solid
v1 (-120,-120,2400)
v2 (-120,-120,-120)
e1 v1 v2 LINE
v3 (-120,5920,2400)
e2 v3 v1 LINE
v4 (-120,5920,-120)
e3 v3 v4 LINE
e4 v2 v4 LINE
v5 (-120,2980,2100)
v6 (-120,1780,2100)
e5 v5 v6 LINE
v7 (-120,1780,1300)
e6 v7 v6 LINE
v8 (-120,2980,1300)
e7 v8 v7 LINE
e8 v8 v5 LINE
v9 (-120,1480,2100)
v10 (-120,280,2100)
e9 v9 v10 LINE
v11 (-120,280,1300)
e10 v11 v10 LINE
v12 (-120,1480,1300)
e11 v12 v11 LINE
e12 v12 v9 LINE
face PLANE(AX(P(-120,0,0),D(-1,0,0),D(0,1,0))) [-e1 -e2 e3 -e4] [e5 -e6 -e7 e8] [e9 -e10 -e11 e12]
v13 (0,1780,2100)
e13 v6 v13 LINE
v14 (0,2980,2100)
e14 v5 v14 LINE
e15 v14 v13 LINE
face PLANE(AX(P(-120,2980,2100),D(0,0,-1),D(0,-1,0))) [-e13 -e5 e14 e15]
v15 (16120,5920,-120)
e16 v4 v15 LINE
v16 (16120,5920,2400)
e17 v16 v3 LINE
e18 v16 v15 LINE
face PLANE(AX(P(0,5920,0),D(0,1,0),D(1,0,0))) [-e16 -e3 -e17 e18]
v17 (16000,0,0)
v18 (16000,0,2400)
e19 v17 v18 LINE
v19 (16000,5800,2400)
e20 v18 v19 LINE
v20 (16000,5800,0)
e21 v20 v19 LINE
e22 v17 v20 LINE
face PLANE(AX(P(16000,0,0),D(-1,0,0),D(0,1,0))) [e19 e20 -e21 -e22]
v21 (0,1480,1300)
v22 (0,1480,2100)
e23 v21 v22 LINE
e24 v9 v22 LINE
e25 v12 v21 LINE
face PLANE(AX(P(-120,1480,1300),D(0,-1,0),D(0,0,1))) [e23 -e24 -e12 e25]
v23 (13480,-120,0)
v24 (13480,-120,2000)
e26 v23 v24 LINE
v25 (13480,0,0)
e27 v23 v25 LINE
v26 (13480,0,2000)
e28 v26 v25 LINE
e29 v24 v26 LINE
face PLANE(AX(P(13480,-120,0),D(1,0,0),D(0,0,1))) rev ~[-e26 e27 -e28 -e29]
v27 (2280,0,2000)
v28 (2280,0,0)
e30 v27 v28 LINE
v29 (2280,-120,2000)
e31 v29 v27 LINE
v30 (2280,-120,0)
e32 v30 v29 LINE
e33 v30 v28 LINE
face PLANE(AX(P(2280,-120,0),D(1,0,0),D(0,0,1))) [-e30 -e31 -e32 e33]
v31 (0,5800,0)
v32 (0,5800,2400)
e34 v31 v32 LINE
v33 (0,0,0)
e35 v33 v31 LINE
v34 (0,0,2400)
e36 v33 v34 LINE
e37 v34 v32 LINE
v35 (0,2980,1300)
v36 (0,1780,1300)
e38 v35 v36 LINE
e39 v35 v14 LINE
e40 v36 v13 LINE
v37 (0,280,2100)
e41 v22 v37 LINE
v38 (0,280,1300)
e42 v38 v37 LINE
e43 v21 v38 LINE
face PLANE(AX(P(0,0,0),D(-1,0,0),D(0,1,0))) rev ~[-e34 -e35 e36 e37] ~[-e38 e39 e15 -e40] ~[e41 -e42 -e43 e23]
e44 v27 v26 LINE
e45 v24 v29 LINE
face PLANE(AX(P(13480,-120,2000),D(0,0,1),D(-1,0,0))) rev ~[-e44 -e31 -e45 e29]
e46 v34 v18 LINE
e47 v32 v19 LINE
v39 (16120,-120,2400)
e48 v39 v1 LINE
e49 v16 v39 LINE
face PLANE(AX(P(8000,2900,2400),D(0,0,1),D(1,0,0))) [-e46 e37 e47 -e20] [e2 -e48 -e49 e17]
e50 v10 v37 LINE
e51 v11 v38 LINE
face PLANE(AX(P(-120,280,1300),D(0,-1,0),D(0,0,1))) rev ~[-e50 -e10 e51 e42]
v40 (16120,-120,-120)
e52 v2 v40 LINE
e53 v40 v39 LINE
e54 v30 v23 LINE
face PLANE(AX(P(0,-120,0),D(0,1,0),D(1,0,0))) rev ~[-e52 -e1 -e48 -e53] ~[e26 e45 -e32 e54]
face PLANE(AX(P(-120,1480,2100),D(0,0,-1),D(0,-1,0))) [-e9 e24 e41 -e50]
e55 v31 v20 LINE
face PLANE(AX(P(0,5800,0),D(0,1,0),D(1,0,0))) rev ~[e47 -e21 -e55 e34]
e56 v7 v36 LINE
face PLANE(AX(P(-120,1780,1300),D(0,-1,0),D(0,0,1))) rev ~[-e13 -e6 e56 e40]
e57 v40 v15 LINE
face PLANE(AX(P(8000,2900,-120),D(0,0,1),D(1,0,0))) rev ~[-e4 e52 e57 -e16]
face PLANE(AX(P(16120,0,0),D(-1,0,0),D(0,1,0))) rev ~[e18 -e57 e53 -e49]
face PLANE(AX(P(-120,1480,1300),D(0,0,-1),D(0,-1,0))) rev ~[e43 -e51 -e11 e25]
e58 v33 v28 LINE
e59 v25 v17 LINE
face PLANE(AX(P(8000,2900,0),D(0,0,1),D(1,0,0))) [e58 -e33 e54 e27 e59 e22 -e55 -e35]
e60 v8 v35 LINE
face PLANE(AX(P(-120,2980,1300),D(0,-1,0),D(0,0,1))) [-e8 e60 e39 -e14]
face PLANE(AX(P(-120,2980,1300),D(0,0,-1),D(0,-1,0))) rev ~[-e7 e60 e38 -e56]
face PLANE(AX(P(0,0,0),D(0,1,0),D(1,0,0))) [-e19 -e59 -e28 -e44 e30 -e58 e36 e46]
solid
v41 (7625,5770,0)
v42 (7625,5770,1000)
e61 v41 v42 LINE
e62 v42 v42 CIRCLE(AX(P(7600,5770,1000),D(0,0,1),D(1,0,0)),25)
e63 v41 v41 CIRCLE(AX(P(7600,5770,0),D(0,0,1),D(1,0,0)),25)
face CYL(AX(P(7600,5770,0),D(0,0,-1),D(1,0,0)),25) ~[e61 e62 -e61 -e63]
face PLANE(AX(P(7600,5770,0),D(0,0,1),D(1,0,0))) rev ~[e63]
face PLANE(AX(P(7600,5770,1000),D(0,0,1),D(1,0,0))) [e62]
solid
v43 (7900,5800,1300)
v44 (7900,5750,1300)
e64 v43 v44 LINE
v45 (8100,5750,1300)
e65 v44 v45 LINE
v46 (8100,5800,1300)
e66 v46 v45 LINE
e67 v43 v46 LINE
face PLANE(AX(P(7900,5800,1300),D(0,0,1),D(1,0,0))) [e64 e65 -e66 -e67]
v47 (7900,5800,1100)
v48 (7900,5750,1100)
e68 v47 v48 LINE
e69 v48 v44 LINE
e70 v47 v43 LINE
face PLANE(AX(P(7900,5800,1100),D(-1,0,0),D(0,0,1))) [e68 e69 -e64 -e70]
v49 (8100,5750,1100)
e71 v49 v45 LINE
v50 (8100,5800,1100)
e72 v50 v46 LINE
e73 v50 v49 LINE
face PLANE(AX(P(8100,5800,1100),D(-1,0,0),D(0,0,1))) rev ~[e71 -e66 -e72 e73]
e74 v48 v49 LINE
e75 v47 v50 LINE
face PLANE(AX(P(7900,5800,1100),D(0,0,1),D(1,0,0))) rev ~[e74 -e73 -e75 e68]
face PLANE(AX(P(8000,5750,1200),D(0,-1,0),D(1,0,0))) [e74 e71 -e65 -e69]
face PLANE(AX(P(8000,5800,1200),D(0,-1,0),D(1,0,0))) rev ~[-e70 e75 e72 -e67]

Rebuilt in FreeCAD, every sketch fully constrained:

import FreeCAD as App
import Part
import Sketcher


def faces_at(feature, points):
    """Names of the faces that lie closest to the given points."""
    faces = feature.Shape.Faces
    near = lambda p: min(range(len(faces)), key=lambda i: faces[i].distToShape(Part.Vertex(*p))[0])
    return sorted({f"Face{near(p) + 1}" for p in points})


def add_polygon(sketch, points):
    """Adds a closed chain of lines whose ends are joined by coincident constraints."""
    first, n = sketch.GeometryCount, len(points)
    for a, b in zip(points, points[1:] + points[:1]):
        sketch.addGeometry(Part.LineSegment(App.Vector(*a, 0), App.Vector(*b, 0)), False)
    for i in range(n):
        sketch.addConstraint(Sketcher.Constraint("Coincident", first + i, 2, first + (i + 1) % n, 1))

doc = App.newDocument("Part")
body = doc.addObject("PartDesign::Body", "Body")

sketch1 = body.newObject("Sketcher::SketchObject", "Sketch")
sketch1.AttachmentSupport = (doc.getObject("XY_Plane"), [""])
sketch1.MapMode = "FlatFace"
add_polygon(sketch1, [(0, 5800), (0, 0), (16000, 0), (16000, 5800)])
sketch1.addConstraint(Sketcher.Constraint("Vertical", 0))
sketch1.addConstraint(Sketcher.Constraint("Horizontal", 1))
sketch1.addConstraint(Sketcher.Constraint("Vertical", 2))
sketch1.addConstraint(Sketcher.Constraint("Horizontal", 3))
sketch1.addConstraint(Sketcher.Constraint("Coincident", 0, 2, -1, 1))
sketch1.addConstraint(Sketcher.Constraint("DistanceX", 1, 1, 1, 2, 16000.0))
sketch1.addConstraint(Sketcher.Constraint("DistanceY", 0, 2, 0, 1, 5800.0))
pad1 = body.newObject("PartDesign::Pad", "Pad")
pad1.Profile = sketch1
pad1.Length = 2400
doc.recompute()

thickness = body.newObject("PartDesign::Thickness", "Thickness")
thickness.Base = (pad1, faces_at(pad1, [(8000, 2900, 2400)]))
thickness.Value = 120
thickness.Reversed = False
thickness.Join = "Intersection"

sketch2 = body.newObject("Sketcher::SketchObject", "Sketch001")
sketch2.AttachmentSupport = (doc.getObject("YZ_Plane"), [""])
sketch2.MapMode = "FlatFace"
sketch2.AttachmentOffset = App.Placement(App.Vector(0, 0, -120), App.Rotation())
add_polygon(sketch2, [(2980, 2100), (2980, 1300), (1780, 1300), (1780, 2100)])
add_polygon(sketch2, [(1480, 2100), (1480, 1300), (280, 1300), (280, 2100)])
sketch2.addConstraint(Sketcher.Constraint("Vertical", 0))
sketch2.addConstraint(Sketcher.Constraint("Horizontal", 1))
sketch2.addConstraint(Sketcher.Constraint("Vertical", 2))
sketch2.addConstraint(Sketcher.Constraint("Horizontal", 3))
sketch2.addConstraint(Sketcher.Constraint("Vertical", 4))
sketch2.addConstraint(Sketcher.Constraint("Horizontal", 5))
sketch2.addConstraint(Sketcher.Constraint("Vertical", 6))
sketch2.addConstraint(Sketcher.Constraint("Horizontal", 7))
sketch2.addConstraint(Sketcher.Constraint("Horizontal", 1, 2, 4, 2))
sketch2.addConstraint(Sketcher.Constraint("Horizontal", 3, 2, 6, 2))
sketch2.addConstraint(Sketcher.Constraint("Equal", 3, 5))
sketch2.addConstraint(Sketcher.Constraint("DistanceX", 1, 2, 1, 1, 1200.0))
sketch2.addConstraint(Sketcher.Constraint("DistanceY", 0, 2, 0, 1, 800.0))
sketch2.addConstraint(Sketcher.Constraint("DistanceX", -1, 1, 0, 2, 2980.0))
sketch2.addConstraint(Sketcher.Constraint("DistanceY", -1, 1, 0, 2, 1300.0))
sketch2.addConstraint(Sketcher.Constraint("DistanceX", -1, 1, 4, 2, 1480.0))
pocket1 = body.newObject("PartDesign::Pocket", "Pocket")
pocket1.Profile = sketch2
pocket1.Length = 120
pocket1.Reversed = True

sketch3 = body.newObject("Sketcher::SketchObject", "Sketch002")
sketch3.AttachmentSupport = (doc.getObject("XZ_Plane"), [""])
sketch3.MapMode = "FlatFace"
sketch3.AttachmentOffset = App.Placement(App.Vector(0, 0, 120), App.Rotation())
add_polygon(sketch3, [(2280, 2000), (2280, 0), (13480, 0), (13480, 2000)])
sketch3.addConstraint(Sketcher.Constraint("Vertical", 0))
sketch3.addConstraint(Sketcher.Constraint("Horizontal", 1))
sketch3.addConstraint(Sketcher.Constraint("Vertical", 2))
sketch3.addConstraint(Sketcher.Constraint("Horizontal", 3))
sketch3.addConstraint(Sketcher.Constraint("PointOnObject", 0, 2, -1))
sketch3.addConstraint(Sketcher.Constraint("DistanceX", 1, 1, 1, 2, 11200.0))
sketch3.addConstraint(Sketcher.Constraint("DistanceY", 0, 2, 0, 1, 2000.0))
sketch3.addConstraint(Sketcher.Constraint("DistanceX", -1, 1, 0, 2, 2280.0))
pocket2 = body.newObject("PartDesign::Pocket", "Pocket001")
pocket2.Profile = sketch3
pocket2.Length = 1200
body2 = doc.addObject("PartDesign::Body", "Body001")

sketch4 = body2.newObject("Sketcher::SketchObject", "Sketch003")
sketch4.AttachmentSupport = (doc.getObject("XZ_Plane001"), [""])
sketch4.MapMode = "FlatFace"
sketch4.AttachmentOffset = App.Placement(App.Vector(0, 0, -5800), App.Rotation())
add_polygon(sketch4, [(7900, 1300), (7900, 1100), (8100, 1100), (8100, 1300)])
sketch4.addConstraint(Sketcher.Constraint("Vertical", 0))
sketch4.addConstraint(Sketcher.Constraint("Horizontal", 1))
sketch4.addConstraint(Sketcher.Constraint("Vertical", 2))
sketch4.addConstraint(Sketcher.Constraint("Horizontal", 3))
sketch4.addConstraint(Sketcher.Constraint("Equal", 3, 0))
sketch4.addConstraint(Sketcher.Constraint("DistanceX", 1, 1, 1, 2, 200.0))
sketch4.addConstraint(Sketcher.Constraint("DistanceX", -1, 1, 0, 2, 7900.0))
sketch4.addConstraint(Sketcher.Constraint("DistanceY", -1, 1, 0, 2, 1100.0))
pad2 = body2.newObject("PartDesign::Pad", "Pad001")
pad2.Profile = sketch4
pad2.Length = 50
body3 = doc.addObject("PartDesign::Body", "Body002")

sketch5 = body3.newObject("Sketcher::SketchObject", "Sketch004")
sketch5.AttachmentSupport = (doc.getObject("XY_Plane002"), [""])
sketch5.MapMode = "FlatFace"
sketch5.addGeometry(Part.Circle(App.Vector(7600, 5770, 0), App.Vector(0, 0, 1), 25), False)
sketch5.addConstraint(Sketcher.Constraint("Diameter", 0, 50.0))
sketch5.addConstraint(Sketcher.Constraint("DistanceX", -1, 1, 0, 3, 7600.0))
sketch5.addConstraint(Sketcher.Constraint("DistanceY", -1, 1, 0, 3, 5770.0))
pad3 = body3.newObject("PartDesign::Pad", "Pad002")
pad3.Profile = sketch5
pad3.Length = 1000

doc.recompute()
